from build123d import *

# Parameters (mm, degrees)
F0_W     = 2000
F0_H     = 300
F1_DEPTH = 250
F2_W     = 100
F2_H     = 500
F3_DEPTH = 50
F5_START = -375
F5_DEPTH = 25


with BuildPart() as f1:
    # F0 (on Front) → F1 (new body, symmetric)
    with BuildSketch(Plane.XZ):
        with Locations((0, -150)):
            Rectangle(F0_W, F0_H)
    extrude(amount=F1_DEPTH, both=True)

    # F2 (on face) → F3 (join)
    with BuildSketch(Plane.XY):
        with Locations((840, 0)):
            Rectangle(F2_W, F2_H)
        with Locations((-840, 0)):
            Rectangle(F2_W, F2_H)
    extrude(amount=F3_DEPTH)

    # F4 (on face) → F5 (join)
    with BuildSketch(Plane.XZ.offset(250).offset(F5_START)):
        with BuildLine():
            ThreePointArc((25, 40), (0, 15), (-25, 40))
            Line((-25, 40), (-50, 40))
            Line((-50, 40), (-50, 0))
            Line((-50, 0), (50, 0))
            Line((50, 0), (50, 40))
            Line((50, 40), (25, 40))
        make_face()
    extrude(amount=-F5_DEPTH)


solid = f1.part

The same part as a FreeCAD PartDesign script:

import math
import FreeCAD as App
import Part
import Sketcher


def add_polygon(sketch, points):
    """Adds a closed chain of lines whose ends are joined by coincident constraints."""
    first, n = sketch.GeometryCount, len(points)
    for a, b in zip(points, points[1:] + points[:1]):
        sketch.addGeometry(Part.LineSegment(App.Vector(*a, 0), App.Vector(*b, 0)), False)
    for i in range(n):
        sketch.addConstraint(Sketcher.Constraint("Coincident", first + i, 2, first + (i + 1) % n, 1))

doc = App.newDocument("Part")
body = doc.addObject("PartDesign::Body", "Body")

# Sketch on XZ plane
sketch1 = body.newObject("Sketcher::SketchObject", "Sketch")
sketch1.AttachmentSupport = (doc.getObject("XZ_Plane"), [""])
sketch1.MapMode = "FlatFace"
add_polygon(sketch1, [(-1000, 0), (-1000, -300), (1000, -300), (1000, 0)])  # lines 0-3
sketch1.addConstraint(Sketcher.Constraint("Vertical", 0))
sketch1.addConstraint(Sketcher.Constraint("Horizontal", 1))
sketch1.addConstraint(Sketcher.Constraint("Vertical", 2))
sketch1.addConstraint(Sketcher.Constraint("Horizontal", 3))
sketch1.addConstraint(Sketcher.Constraint("Symmetric", 2, 2, 3, 2, -1, 1))
sketch1.addConstraint(Sketcher.Constraint("DistanceX", 1, 1, 1, 2, 2000.0))
sketch1.addConstraint(Sketcher.Constraint("DistanceY", 0, 2, 0, 1, 300.0))
pad1 = body.newObject("PartDesign::Pad", "Pad")
pad1.Profile = sketch1
pad1.Length = 500
pad1.Midplane = True

# Sketch on XY plane
sketch2 = body.newObject("Sketcher::SketchObject", "Sketch001")
sketch2.AttachmentSupport = (doc.getObject("XY_Plane"), [""])
sketch2.MapMode = "FlatFace"
add_polygon(sketch2, [(790, 250), (790, -250), (890, -250), (890, 250)])  # lines 0-3
add_polygon(sketch2, [(-890, 250), (-890, -250), (-790, -250), (-790, 250)])  # lines 4-7
sketch2.addConstraint(Sketcher.Constraint("Vertical", 0))
sketch2.addConstraint(Sketcher.Constraint("Horizontal", 1))
sketch2.addConstraint(Sketcher.Constraint("Vertical", 2))
sketch2.addConstraint(Sketcher.Constraint("Horizontal", 3))
sketch2.addConstraint(Sketcher.Constraint("Vertical", 4))
sketch2.addConstraint(Sketcher.Constraint("Horizontal", 5))
sketch2.addConstraint(Sketcher.Constraint("Vertical", 6))
sketch2.addConstraint(Sketcher.Constraint("Horizontal", 7))
sketch2.addConstraint(Sketcher.Constraint("Symmetric", 2, 2, 4, 2, -1, 1))
sketch2.addConstraint(Sketcher.Constraint("Symmetric", 0, 2, 6, 2, -1, 1))
sketch2.addConstraint(Sketcher.Constraint("Horizontal", 1, 2, 4, 2))
sketch2.addConstraint(Sketcher.Constraint("DistanceX", 1, 1, 1, 2, 100.0))
sketch2.addConstraint(Sketcher.Constraint("DistanceY", 0, 2, 0, 1, 500.0))
sketch2.addConstraint(Sketcher.Constraint("DistanceX", -1, 1, 0, 2, 790.0))
pad2 = body.newObject("PartDesign::Pad", "Pad001")
pad2.Profile = sketch2
pad2.Length = 50

# Sketch on XZ plane
sketch3 = body.newObject("Sketcher::SketchObject", "Sketch002")
sketch3.AttachmentSupport = (doc.getObject("XZ_Plane"), [""])
sketch3.MapMode = "FlatFace"
sketch3.AttachmentOffset = App.Placement(App.Vector(0, 0, -125), App.Rotation())
sketch3.addGeometry(Part.ArcOfCircle(Part.Circle(App.Vector(0, 40, 0), App.Vector(0, 0, 1), 25), math.radians(180), math.radians(360)), False)
sketch3.addGeometry(Part.LineSegment(App.Vector(-25, 40, 0), App.Vector(-50, 40, 0)), False)
sketch3.addGeometry(Part.LineSegment(App.Vector(-50, 40, 0), App.Vector(-50, 0, 0)), False)
sketch3.addGeometry(Part.LineSegment(App.Vector(-50, 0, 0), App.Vector(50, 0, 0)), False)
sketch3.addGeometry(Part.LineSegment(App.Vector(50, 0, 0), App.Vector(50, 40, 0)), False)
sketch3.addGeometry(Part.LineSegment(App.Vector(50, 40, 0), App.Vector(25, 40, 0)), False)
sketch3.addConstraint(Sketcher.Constraint("Coincident", 0, 1, 1, 1))
sketch3.addConstraint(Sketcher.Constraint("Coincident", 1, 2, 2, 1))
sketch3.addConstraint(Sketcher.Constraint("Coincident", 2, 2, 3, 1))
sketch3.addConstraint(Sketcher.Constraint("Coincident", 3, 2, 4, 1))
sketch3.addConstraint(Sketcher.Constraint("Coincident", 4, 2, 5, 1))
sketch3.addConstraint(Sketcher.Constraint("Coincident", 5, 2, 0, 2))
sketch3.addConstraint(Sketcher.Constraint("Horizontal", 1))
sketch3.addConstraint(Sketcher.Constraint("Vertical", 2))
sketch3.addConstraint(Sketcher.Constraint("Horizontal", 3))
sketch3.addConstraint(Sketcher.Constraint("Vertical", 4))
sketch3.addConstraint(Sketcher.Constraint("Horizontal", 5))
sketch3.addConstraint(Sketcher.Constraint("Symmetric", 2, 2, 3, 2, -1, 1))
sketch3.addConstraint(Sketcher.Constraint("Symmetric", 0, 1, 5, 2, -2))
sketch3.addConstraint(Sketcher.Constraint("Radius", 0, 25.0))
sketch3.addConstraint(Sketcher.Constraint("DistanceX", 1, 2, 1, 1, 25.0))
sketch3.addConstraint(Sketcher.Constraint("DistanceY", 2, 2, 2, 1, 40.0))
sketch3.addConstraint(Sketcher.Constraint("DistanceY", -1, 1, 0, 3, 40.0))
pad3 = body.newObject("PartDesign::Pad", "Pad002")
pad3.Profile = sketch3
pad3.Length = 25
pad3.Reversed = True

doc.recompute()
